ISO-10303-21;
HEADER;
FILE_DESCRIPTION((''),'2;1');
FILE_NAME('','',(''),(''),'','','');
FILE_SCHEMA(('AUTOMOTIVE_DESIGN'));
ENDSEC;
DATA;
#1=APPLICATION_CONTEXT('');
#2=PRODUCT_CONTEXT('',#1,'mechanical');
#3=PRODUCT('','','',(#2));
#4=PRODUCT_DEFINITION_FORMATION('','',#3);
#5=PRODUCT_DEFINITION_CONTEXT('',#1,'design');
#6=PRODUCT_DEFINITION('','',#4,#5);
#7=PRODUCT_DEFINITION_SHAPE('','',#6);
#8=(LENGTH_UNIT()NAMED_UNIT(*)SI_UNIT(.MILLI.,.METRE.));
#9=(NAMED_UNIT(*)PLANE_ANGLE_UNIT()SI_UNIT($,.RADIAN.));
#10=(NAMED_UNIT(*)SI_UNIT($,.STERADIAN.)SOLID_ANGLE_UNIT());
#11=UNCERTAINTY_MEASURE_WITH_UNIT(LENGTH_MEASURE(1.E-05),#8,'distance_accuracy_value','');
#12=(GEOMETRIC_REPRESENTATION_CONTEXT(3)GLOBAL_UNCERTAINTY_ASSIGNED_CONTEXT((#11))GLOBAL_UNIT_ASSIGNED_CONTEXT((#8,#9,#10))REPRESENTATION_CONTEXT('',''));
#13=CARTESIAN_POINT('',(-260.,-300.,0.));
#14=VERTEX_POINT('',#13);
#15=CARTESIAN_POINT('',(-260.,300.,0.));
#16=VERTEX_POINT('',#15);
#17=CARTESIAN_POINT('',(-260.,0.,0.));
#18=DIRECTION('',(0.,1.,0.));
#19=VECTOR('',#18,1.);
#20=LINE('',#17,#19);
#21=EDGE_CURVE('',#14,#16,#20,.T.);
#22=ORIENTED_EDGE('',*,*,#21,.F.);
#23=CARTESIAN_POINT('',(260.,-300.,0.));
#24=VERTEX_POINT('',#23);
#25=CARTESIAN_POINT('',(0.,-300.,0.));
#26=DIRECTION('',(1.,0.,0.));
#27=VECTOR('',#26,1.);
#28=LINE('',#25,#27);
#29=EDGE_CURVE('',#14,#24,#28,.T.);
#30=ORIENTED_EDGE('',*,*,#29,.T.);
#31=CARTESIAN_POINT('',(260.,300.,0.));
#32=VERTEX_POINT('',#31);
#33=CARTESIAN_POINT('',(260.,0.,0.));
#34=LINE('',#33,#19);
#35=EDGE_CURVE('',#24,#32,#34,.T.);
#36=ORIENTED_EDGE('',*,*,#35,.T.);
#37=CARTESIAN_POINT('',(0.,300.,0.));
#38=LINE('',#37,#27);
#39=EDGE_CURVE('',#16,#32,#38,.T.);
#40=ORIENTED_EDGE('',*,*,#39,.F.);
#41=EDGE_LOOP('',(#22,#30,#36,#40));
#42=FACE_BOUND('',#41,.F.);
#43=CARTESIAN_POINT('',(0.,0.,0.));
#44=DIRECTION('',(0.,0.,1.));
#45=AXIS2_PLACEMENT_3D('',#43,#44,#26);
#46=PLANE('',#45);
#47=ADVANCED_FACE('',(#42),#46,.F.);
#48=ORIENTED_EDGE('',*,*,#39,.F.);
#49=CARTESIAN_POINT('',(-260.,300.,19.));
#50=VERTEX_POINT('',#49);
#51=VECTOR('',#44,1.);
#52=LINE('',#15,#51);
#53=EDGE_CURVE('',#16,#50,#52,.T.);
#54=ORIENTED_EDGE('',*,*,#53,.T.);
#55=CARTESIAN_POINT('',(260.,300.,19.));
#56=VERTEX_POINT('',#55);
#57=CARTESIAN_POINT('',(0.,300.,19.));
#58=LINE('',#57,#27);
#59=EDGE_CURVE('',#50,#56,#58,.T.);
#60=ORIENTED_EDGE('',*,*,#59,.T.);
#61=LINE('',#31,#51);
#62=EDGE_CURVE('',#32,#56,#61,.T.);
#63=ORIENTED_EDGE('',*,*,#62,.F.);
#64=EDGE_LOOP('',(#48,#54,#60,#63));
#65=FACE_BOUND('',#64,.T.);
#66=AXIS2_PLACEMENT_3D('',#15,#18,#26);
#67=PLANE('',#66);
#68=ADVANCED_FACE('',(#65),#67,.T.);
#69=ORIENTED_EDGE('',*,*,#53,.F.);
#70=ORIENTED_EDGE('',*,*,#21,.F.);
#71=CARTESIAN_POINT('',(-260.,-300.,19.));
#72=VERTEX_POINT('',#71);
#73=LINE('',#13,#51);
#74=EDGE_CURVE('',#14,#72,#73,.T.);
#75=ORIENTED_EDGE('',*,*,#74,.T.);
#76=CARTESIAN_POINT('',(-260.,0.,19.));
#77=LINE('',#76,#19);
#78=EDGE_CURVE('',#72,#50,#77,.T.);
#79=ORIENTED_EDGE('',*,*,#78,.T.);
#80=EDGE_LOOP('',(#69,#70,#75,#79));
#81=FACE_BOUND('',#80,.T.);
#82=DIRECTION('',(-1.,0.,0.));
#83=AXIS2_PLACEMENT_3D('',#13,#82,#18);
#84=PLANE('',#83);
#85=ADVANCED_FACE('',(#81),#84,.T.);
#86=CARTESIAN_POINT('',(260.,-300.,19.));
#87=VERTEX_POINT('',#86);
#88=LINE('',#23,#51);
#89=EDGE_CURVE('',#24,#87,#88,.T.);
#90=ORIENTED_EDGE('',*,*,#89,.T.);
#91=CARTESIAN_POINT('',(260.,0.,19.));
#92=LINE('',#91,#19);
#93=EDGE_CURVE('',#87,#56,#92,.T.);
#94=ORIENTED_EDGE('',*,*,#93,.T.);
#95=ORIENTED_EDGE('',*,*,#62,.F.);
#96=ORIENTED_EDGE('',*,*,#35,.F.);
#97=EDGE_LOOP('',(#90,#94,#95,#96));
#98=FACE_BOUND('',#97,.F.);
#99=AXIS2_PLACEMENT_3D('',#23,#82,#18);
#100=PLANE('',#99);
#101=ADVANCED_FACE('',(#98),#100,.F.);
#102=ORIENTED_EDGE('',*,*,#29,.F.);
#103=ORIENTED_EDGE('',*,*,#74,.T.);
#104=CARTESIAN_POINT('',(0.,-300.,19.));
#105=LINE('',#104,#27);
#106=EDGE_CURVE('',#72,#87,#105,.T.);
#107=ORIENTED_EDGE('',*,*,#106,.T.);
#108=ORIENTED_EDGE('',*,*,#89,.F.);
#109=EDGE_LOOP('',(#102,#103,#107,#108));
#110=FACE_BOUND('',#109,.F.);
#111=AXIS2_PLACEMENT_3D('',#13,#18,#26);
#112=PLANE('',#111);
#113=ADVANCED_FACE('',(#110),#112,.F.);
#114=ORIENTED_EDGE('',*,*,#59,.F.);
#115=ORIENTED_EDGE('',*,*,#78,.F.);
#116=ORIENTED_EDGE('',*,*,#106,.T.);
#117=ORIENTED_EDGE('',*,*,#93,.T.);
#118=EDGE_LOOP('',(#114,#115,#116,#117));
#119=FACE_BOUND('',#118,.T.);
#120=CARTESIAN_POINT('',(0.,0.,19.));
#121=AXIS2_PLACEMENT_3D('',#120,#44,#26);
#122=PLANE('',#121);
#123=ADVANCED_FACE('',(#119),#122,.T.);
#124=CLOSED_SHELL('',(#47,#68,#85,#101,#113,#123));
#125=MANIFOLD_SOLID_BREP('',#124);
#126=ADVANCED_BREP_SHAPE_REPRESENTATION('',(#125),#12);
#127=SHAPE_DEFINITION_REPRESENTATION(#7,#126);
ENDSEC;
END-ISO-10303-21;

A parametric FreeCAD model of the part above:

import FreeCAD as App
import Part
import Sketcher

doc = App.newDocument("Part")
body = doc.addObject("PartDesign::Body", "Body")

sketch1 = body.newObject("Sketcher::SketchObject", "Sketch")
sketch1.AttachmentSupport = (doc.getObject("XY_Plane"), [""])
sketch1.MapMode = "FlatFace"
sketch1.addGeometry(Part.LineSegment(App.Vector(-260, 300, 0), App.Vector(-260, -300, 0)), False)
sketch1.addGeometry(Part.LineSegment(App.Vector(-260, -300, 0), App.Vector(260, -300, 0)), False)
sketch1.addGeometry(Part.LineSegment(App.Vector(260, -300, 0), App.Vector(260, 300, 0)), False)
sketch1.addGeometry(Part.LineSegment(App.Vector(260, 300, 0), App.Vector(-260, 300, 0)), False)
sketch1.addConstraint(Sketcher.Constraint("Coincident", 0, 2, 1, 1))
sketch1.addConstraint(Sketcher.Constraint("Coincident", 1, 2, 2, 1))
sketch1.addConstraint(Sketcher.Constraint("Coincident", 2, 2, 3, 1))
sketch1.addConstraint(Sketcher.Constraint("Coincident", 3, 2, 0, 1))
sketch1.addConstraint(Sketcher.Constraint("Vertical", 0))
sketch1.addConstraint(Sketcher.Constraint("Horizontal", 1))
sketch1.addConstraint(Sketcher.Constraint("Vertical", 2))
sketch1.addConstraint(Sketcher.Constraint("Horizontal", 3))
sketch1.addConstraint(Sketcher.Constraint("Symmetric", 0, 2, 2, 2, -1, 1))
sketch1.addConstraint(Sketcher.Constraint("DistanceX", 1, 1, 1, 2, 520.0))
sketch1.addConstraint(Sketcher.Constraint("DistanceY", 0, 2, 0, 1, 600.0))
pad1 = body.newObject("PartDesign::Pad", "Pad")
pad1.Profile = sketch1
pad1.Length = 19

doc.recompute()
